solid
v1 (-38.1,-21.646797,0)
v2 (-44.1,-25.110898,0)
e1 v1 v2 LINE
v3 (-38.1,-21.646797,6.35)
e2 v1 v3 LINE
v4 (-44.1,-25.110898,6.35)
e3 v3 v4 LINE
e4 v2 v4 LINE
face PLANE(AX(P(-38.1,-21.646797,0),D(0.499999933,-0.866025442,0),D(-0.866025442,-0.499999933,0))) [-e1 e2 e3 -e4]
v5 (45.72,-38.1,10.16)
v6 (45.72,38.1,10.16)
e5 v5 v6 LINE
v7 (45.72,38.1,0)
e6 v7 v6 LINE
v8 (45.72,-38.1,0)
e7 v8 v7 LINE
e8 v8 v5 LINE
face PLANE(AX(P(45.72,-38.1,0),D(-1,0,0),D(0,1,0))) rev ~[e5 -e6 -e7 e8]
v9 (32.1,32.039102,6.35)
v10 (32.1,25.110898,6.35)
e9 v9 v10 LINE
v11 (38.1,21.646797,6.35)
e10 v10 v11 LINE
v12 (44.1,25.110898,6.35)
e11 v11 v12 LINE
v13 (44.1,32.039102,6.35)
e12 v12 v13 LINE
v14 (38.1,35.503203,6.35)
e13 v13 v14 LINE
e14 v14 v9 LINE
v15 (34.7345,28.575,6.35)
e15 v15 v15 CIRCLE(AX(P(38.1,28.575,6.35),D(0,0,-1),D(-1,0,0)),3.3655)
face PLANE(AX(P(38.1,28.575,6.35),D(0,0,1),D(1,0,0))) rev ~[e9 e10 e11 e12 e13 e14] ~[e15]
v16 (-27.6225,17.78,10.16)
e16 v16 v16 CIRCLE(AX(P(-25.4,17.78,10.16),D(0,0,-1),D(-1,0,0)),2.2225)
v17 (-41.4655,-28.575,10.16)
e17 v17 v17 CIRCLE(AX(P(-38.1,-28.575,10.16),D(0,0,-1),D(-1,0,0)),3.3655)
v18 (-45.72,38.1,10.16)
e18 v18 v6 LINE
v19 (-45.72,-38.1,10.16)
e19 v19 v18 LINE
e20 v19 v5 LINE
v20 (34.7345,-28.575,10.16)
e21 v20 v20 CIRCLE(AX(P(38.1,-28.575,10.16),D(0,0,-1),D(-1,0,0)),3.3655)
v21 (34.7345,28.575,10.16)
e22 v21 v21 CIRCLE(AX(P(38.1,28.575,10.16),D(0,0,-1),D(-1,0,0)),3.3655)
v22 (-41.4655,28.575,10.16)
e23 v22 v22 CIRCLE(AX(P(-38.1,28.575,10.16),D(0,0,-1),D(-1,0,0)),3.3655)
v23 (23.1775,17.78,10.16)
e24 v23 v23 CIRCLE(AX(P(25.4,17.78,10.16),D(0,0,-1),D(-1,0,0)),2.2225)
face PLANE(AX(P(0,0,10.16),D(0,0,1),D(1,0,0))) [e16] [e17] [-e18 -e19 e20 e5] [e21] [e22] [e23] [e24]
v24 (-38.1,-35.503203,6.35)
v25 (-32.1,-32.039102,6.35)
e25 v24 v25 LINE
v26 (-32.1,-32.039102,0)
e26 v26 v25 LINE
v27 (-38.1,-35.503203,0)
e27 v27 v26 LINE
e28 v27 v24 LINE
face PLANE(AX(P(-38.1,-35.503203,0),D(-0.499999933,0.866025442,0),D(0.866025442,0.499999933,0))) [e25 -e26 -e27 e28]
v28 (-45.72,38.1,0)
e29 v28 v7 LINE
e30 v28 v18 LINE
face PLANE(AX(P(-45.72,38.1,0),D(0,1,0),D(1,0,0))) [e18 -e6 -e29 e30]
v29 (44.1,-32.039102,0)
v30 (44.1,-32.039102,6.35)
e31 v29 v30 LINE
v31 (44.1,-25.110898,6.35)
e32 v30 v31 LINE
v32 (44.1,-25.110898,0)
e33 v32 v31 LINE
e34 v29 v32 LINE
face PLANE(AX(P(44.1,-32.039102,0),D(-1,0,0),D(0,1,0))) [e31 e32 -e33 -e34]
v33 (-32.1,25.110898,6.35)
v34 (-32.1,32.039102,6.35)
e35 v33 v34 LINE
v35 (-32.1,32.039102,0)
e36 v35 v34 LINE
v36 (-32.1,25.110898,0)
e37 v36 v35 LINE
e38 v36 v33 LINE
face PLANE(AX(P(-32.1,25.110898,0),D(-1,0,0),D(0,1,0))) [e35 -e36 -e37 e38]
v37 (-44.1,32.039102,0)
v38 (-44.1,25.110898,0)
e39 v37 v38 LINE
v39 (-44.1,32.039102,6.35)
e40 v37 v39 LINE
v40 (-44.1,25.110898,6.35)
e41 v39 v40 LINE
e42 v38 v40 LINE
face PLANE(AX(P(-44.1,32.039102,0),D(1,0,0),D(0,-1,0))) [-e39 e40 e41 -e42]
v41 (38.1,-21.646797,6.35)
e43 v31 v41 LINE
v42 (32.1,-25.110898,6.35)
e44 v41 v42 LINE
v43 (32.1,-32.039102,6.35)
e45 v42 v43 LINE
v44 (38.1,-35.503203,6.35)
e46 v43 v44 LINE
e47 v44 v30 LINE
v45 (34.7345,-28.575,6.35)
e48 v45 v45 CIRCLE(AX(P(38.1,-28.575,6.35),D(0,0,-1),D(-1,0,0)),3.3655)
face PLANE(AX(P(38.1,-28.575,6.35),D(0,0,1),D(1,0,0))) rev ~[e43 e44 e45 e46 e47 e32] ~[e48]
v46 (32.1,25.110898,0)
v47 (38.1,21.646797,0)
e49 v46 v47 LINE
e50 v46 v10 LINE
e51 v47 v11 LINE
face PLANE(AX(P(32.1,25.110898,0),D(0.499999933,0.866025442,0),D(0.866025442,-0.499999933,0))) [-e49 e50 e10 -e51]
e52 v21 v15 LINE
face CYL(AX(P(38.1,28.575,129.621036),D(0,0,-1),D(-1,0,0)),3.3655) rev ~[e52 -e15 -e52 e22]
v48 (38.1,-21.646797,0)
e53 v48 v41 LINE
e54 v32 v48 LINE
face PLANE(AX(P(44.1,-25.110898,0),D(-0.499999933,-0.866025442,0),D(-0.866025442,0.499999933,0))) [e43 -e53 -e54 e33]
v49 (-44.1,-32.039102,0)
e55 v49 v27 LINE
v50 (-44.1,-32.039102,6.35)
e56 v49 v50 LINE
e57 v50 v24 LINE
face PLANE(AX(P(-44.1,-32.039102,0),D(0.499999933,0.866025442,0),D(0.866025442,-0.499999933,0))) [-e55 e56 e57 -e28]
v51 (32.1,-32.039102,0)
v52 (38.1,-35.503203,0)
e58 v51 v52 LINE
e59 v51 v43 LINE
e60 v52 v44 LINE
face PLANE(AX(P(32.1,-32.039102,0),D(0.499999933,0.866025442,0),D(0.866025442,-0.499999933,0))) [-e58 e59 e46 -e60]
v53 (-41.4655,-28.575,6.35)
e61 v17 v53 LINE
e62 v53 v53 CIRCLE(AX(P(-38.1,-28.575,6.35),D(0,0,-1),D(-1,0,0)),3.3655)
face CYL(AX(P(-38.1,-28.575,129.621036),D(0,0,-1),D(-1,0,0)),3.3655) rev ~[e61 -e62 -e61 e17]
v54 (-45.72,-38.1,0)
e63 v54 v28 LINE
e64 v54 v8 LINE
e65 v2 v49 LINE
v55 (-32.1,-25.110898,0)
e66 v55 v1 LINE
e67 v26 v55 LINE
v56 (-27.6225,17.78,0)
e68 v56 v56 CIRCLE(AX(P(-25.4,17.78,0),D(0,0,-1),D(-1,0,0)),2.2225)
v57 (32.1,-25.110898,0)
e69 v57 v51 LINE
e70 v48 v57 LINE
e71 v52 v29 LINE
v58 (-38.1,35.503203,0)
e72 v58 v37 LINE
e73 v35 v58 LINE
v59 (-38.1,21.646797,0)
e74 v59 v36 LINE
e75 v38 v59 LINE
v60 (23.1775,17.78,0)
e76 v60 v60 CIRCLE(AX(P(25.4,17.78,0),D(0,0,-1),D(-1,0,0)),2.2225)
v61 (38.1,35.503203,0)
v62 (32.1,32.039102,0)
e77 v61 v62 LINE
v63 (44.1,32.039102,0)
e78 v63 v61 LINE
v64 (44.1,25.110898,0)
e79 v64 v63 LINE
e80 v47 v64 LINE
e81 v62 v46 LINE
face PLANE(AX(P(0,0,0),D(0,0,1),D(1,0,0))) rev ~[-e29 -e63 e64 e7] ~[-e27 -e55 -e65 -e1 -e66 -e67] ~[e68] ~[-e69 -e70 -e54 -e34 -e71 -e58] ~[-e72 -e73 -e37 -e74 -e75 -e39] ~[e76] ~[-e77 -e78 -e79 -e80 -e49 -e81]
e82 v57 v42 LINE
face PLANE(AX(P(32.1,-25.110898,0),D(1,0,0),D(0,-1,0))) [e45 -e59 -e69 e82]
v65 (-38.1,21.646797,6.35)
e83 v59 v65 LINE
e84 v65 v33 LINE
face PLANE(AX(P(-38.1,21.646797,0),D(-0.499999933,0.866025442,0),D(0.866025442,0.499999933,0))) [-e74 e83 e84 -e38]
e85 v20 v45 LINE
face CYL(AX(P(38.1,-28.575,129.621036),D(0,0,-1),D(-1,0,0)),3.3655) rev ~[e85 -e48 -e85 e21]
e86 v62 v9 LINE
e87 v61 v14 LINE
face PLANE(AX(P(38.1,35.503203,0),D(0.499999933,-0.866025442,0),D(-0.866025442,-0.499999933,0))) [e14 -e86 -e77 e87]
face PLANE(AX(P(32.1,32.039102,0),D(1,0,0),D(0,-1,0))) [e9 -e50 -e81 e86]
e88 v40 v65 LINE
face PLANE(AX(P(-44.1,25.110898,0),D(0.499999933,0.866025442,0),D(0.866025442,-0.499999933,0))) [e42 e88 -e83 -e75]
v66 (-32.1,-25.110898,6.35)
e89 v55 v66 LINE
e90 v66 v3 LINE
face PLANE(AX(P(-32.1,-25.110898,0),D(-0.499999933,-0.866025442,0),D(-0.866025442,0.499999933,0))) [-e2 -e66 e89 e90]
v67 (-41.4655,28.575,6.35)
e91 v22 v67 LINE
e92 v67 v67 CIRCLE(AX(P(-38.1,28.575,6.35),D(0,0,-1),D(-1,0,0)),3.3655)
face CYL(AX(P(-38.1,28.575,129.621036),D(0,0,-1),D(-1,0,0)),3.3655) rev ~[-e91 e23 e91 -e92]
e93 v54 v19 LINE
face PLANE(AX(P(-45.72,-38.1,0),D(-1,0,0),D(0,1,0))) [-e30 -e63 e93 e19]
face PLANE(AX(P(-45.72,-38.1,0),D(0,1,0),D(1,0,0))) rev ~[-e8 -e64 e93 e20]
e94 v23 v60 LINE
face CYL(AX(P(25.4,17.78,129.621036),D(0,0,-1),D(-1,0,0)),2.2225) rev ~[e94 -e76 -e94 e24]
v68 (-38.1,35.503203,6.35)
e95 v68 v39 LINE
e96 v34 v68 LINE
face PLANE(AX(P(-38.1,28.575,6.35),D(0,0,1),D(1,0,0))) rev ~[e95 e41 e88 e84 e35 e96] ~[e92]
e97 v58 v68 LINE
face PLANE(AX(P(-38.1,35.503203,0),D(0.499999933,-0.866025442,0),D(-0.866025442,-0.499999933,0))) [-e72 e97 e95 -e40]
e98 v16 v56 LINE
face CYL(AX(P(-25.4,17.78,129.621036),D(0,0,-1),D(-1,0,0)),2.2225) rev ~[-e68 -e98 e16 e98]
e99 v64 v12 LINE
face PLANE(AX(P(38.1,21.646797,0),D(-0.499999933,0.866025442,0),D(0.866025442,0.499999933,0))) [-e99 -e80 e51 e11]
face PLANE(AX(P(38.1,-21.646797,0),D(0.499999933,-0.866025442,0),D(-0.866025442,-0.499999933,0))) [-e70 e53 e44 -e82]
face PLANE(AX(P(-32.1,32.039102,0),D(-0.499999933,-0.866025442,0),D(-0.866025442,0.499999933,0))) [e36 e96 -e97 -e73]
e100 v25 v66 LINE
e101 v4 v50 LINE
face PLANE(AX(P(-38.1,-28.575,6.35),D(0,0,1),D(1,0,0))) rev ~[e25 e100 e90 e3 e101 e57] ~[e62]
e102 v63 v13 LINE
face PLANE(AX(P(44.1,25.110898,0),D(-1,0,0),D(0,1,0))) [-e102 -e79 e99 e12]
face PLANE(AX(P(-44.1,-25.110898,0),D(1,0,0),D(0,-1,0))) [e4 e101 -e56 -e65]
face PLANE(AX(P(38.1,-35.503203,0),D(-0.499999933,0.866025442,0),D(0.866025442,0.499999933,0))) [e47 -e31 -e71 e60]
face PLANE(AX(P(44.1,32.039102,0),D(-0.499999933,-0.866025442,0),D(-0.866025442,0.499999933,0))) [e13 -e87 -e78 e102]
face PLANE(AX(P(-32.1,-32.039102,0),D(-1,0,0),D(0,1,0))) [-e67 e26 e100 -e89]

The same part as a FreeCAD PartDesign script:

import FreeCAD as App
import Part
import Sketcher
from FreeCAD import Vector
Q = App.Units.Quantity

doc = App.newDocument("Part")
body = doc.addObject("PartDesign::Body", "Body")

sketch1 = body.newObject("Sketcher::SketchObject", "Sketch")
sketch1.AttachmentSupport = (doc.getObject("XY_Plane"), [""])
sketch1.MapMode = "FlatFace"
sketch1.addGeometry(Part.LineSegment(Vector(-45.72, 38.1, 0), Vector(-45.72, -38.1, 0)), False)
sketch1.addGeometry(Part.LineSegment(Vector(-45.72, -38.1, 0), Vector(45.72, -38.1, 0)), False)
sketch1.addGeometry(Part.LineSegment(Vector(45.72, -38.1, 0), Vector(45.72, 38.1, 0)), False)
sketch1.addGeometry(Part.LineSegment(Vector(45.72, 38.1, 0), Vector(-45.72, 38.1, 0)), False)
sketch1.addConstraint(Sketcher.Constraint("Coincident", 0, 2, 1, 1))
sketch1.addConstraint(Sketcher.Constraint("Coincident", 1, 2, 2, 1))
sketch1.addConstraint(Sketcher.Constraint("Coincident", 2, 2, 3, 1))
sketch1.addConstraint(Sketcher.Constraint("Coincident", 3, 2, 0, 1))
sketch1.addConstraint(Sketcher.Constraint("Vertical", 0))
sketch1.addConstraint(Sketcher.Constraint("Horizontal", 1))
sketch1.addConstraint(Sketcher.Constraint("Vertical", 2))
sketch1.addConstraint(Sketcher.Constraint("Horizontal", 3))
sketch1.addConstraint(Sketcher.Constraint("Symmetric", 0, 2, 2, 2, -1, 1))
sketch1.addConstraint(Sketcher.Constraint("DistanceY", 0, 2, 0, 1, Q("3 in")))
sketch1.addConstraint(Sketcher.Constraint("DistanceX", 1, 1, 1, 2, Q("3.6 in")))
pad1 = body.newObject("PartDesign::Pad", "Pad")
pad1.Profile = sketch1
pad1.Length = Q("0.4 in")

sketch2 = body.newObject("Sketcher::SketchObject", "Sketch001")
sketch2.AttachmentSupport = (doc.getObject("XY_Plane"), [""])
sketch2.MapMode = "FlatFace"
sketch2.AttachmentOffset = App.Placement(Vector(0, 0, 0.4 * 25.4), App.Rotation())
sketch2.addGeometry(Part.Circle(Vector(-25.4, 17.78, 0), Vector(0, 0, 1), 2.2225), False)
sketch2.addGeometry(Part.Circle(Vector(25.4, 17.78, 0), Vector(0, 0, 1), 2.2225), False)
sketch2.addConstraint(Sketcher.Constraint("Equal", 0, 1))
sketch2.addConstraint(Sketcher.Constraint("Symmetric", 0, 3, 1, 3, -2))
sketch2.addConstraint(Sketcher.Constraint("Diameter", 0, Q("0.175 in")))
sketch2.addConstraint(Sketcher.Constraint("DistanceX", 0, 3, -1, 1, Q("1 in")))
sketch2.addConstraint(Sketcher.Constraint("DistanceY", -1, 1, 0, 3, Q("0.7 in")))
doc.recompute()
hole = body.newObject("PartDesign::Hole", "Hole")
hole.Profile = sketch2
hole.ThreadType = "None"
hole.Diameter = Q("0.175 in")
hole.DepthType = "ThroughAll"

sketch3 = body.newObject("Sketcher::SketchObject", "Sketch002")
sketch3.AttachmentSupport = (doc.getObject("XY_Plane"), [""])
sketch3.MapMode = "FlatFace"
sketch3.AttachmentOffset = App.Placement(Vector(0, 0, 0.4 * 25.4), App.Rotation())
sketch3.addGeometry(Part.Circle(Vector(-38.1, 28.575, 0), Vector(0, 0, 1), 3.3655), False)
sketch3.addGeometry(Part.Circle(Vector(38.1, 28.575, 0), Vector(0, 0, 1), 3.3655), False)
sketch3.addGeometry(Part.Circle(Vector(-38.1, -28.575, 0), Vector(0, 0, 1), 3.3655), False)
sketch3.addGeometry(Part.Circle(Vector(38.1, -28.575, 0), Vector(0, 0, 1), 3.3655), False)
sketch3.addConstraint(Sketcher.Constraint("Equal", 0, 1))
sketch3.addConstraint(Sketcher.Constraint("Equal", 1, 2))
sketch3.addConstraint(Sketcher.Constraint("Equal", 2, 3))
sketch3.addConstraint(Sketcher.Constraint("Symmetric", 1, 3, 2, 3, -1, 1))
sketch3.addConstraint(Sketcher.Constraint("Symmetric", 0, 3, 3, 3, -1, 1))
sketch3.addConstraint(Sketcher.Constraint("Symmetric", 0, 3, 1, 3, -2))
sketch3.addConstraint(Sketcher.Constraint("Diameter", 0, Q("0.265 in")))
sketch3.addConstraint(Sketcher.Constraint("DistanceX", 0, 3, 1, 3, Q("3 in")))
sketch3.addConstraint(Sketcher.Constraint("DistanceY", 2, 3, 0, 3, Q("2.25 in")))
doc.recompute()
hole2 = body.newObject("PartDesign::Hole", "Hole001")
hole2.Profile = sketch3
hole2.ThreadType = "None"
hole2.Diameter = Q("0.265 in")
hole2.DepthType = "ThroughAll"

sketch4 = body.newObject("Sketcher::SketchObject", "Sketch003")
sketch4.AttachmentSupport = (doc.getObject("XY_Plane"), [""])
sketch4.MapMode = "FlatFace"
sketch4.addGeometry(Part.LineSegment(Vector(38.1, 35.503203, 0), Vector(32.1, 32.039102, 0)), False)
sketch4.addGeometry(Part.LineSegment(Vector(32.1, 32.039102, 0), Vector(32.1, 25.110898, 0)), False)
sketch4.addGeometry(Part.LineSegment(Vector(32.1, 25.110898, 0), Vector(38.1, 21.646797, 0)), False)
sketch4.addGeometry(Part.LineSegment(Vector(38.1, 21.646797, 0), Vector(44.1, 25.110898, 0)), False)
sketch4.addGeometry(Part.LineSegment(Vector(44.1, 25.110898, 0), Vector(44.1, 32.039102, 0)), False)
sketch4.addGeometry(Part.LineSegment(Vector(44.1, 32.039102, 0), Vector(38.1, 35.503203, 0)), False)
sketch4.addGeometry(Part.LineSegment(Vector(-44.1, 25.110898, 0), Vector(-38.1, 21.646797, 0)), False)
sketch4.addGeometry(Part.LineSegment(Vector(-38.1, 21.646797, 0), Vector(-32.1, 25.110898, 0)), False)
sketch4.addGeometry(Part.LineSegment(Vector(-32.1, 25.110898, 0), Vector(-32.1, 32.039102, 0)), False)
sketch4.addGeometry(Part.LineSegment(Vector(-32.1, 32.039102, 0), Vector(-38.1, 35.503203, 0)), False)
sketch4.addGeometry(Part.LineSegment(Vector(-38.1, 35.503203, 0), Vector(-44.1, 32.039102, 0)), False)
sketch4.addGeometry(Part.LineSegment(Vector(-44.1, 32.039102, 0), Vector(-44.1, 25.110898, 0)), False)
sketch4.addGeometry(Part.LineSegment(Vector(44.1, -25.110898, 0), Vector(38.1, -21.646797, 0)), False)
sketch4.addGeometry(Part.LineSegment(Vector(38.1, -21.646797, 0), Vector(32.1, -25.110898, 0)), False)
sketch4.addGeometry(Part.LineSegment(Vector(32.1, -25.110898, 0), Vector(32.1, -32.039102, 0)), False)
sketch4.addGeometry(Part.LineSegment(Vector(32.1, -32.039102, 0), Vector(38.1, -35.503203, 0)), False)
sketch4.addGeometry(Part.LineSegment(Vector(38.1, -35.503203, 0), Vector(44.1, -32.039102, 0)), False)
sketch4.addGeometry(Part.LineSegment(Vector(44.1, -32.039102, 0), Vector(44.1, -25.110898, 0)), False)
sketch4.addGeometry(Part.LineSegment(Vector(-32.1, -25.110898, 0), Vector(-38.1, -21.646797, 0)), False)
sketch4.addGeometry(Part.LineSegment(Vector(-38.1, -21.646797, 0), Vector(-44.1, -25.110898, 0)), False)
sketch4.addGeometry(Part.LineSegment(Vector(-44.1, -25.110898, 0), Vector(-44.1, -32.039102, 0)), False)
sketch4.addGeometry(Part.LineSegment(Vector(-44.1, -32.039102, 0), Vector(-38.1, -35.503203, 0)), False)
sketch4.addGeometry(Part.LineSegment(Vector(-38.1, -35.503203, 0), Vector(-32.1, -32.039102, 0)), False)
sketch4.addGeometry(Part.LineSegment(Vector(-32.1, -32.039102, 0), Vector(-32.1, -25.110898, 0)), False)
sketch4.addConstraint(Sketcher.Constraint("Coincident", 0, 2, 1, 1))
sketch4.addConstraint(Sketcher.Constraint("Coincident", 1, 2, 2, 1))
sketch4.addConstraint(Sketcher.Constraint("Coincident", 2, 2, 3, 1))
sketch4.addConstraint(Sketcher.Constraint("Coincident", 3, 2, 4, 1))
sketch4.addConstraint(Sketcher.Constraint("Coincident", 4, 2, 5, 1))
sketch4.addConstraint(Sketcher.Constraint("Coincident", 5, 2, 0, 1))
sketch4.addConstraint(Sketcher.Constraint("Coincident", 6, 2, 7, 1))
sketch4.addConstraint(Sketcher.Constraint("Coincident", 7, 2, 8, 1))
sketch4.addConstraint(Sketcher.Constraint("Coincident", 8, 2, 9, 1))
sketch4.addConstraint(Sketcher.Constraint("Coincident", 9, 2, 10, 1))
sketch4.addConstraint(Sketcher.Constraint("Coincident", 10, 2, 11, 1))
sketch4.addConstraint(Sketcher.Constraint("Coincident", 11, 2, 6, 1))
sketch4.addConstraint(Sketcher.Constraint("Coincident", 12, 2, 13, 1))
sketch4.addConstraint(Sketcher.Constraint("Coincident", 13, 2, 14, 1))
sketch4.addConstraint(Sketcher.Constraint("Coincident", 14, 2, 15, 1))
sketch4.addConstraint(Sketcher.Constraint("Coincident", 15, 2, 16, 1))
sketch4.addConstraint(Sketcher.Constraint("Coincident", 16, 2, 17, 1))
sketch4.addConstraint(Sketcher.Constraint("Coincident", 17, 2, 12, 1))
sketch4.addConstraint(Sketcher.Constraint("Coincident", 18, 2, 19, 1))
sketch4.addConstraint(Sketcher.Constraint("Coincident", 19, 2, 20, 1))
sketch4.addConstraint(Sketcher.Constraint("Coincident", 20, 2, 21, 1))
sketch4.addConstraint(Sketcher.Constraint("Coincident", 21, 2, 22, 1))
sketch4.addConstraint(Sketcher.Constraint("Coincident", 22, 2, 23, 1))
sketch4.addConstraint(Sketcher.Constraint("Coincident", 23, 2, 18, 1))
sketch4.addConstraint(Sketcher.Constraint("Vertical", 1))
sketch4.addConstraint(Sketcher.Constraint("Vertical", 4))
sketch4.addConstraint(Sketcher.Constraint("Vertical", 8))
sketch4.addConstraint(Sketcher.Constraint("Vertical", 11))
sketch4.addConstraint(Sketcher.Constraint("Vertical", 14))
sketch4.addConstraint(Sketcher.Constraint("Vertical", 17))
sketch4.addConstraint(Sketcher.Constraint("Vertical", 20))
sketch4.addConstraint(Sketcher.Constraint("Vertical", 23))
sketch4.addConstraint(Sketcher.Constraint("Symmetric", 6, 2, 12, 2, -1, 1))
sketch4.addConstraint(Sketcher.Constraint("Symmetric", 7, 2, 13, 2, -1, 1))
sketch4.addConstraint(Sketcher.Constraint("Symmetric", 9, 2, 15, 2, -1, 1))
sketch4.addConstraint(Sketcher.Constraint("Symmetric", 10, 2, 16, 2, -1, 1))
sketch4.addConstraint(Sketcher.Constraint("Symmetric", 2, 2, 18, 2, -1, 1))
sketch4.addConstraint(Sketcher.Constraint("Symmetric", 3, 2, 19, 2, -1, 1))
sketch4.addConstraint(Sketcher.Constraint("Symmetric", 5, 2, 21, 2, -1, 1))
sketch4.addConstraint(Sketcher.Constraint("Symmetric", 0, 2, 22, 2, -1, 1))
sketch4.addConstraint(Sketcher.Constraint("Symmetric", 2, 2, 6, 2, -2))
sketch4.addConstraint(Sketcher.Constraint("Symmetric", 1, 2, 7, 2, -2))
sketch4.addConstraint(Sketcher.Constraint("Symmetric", 5, 2, 9, 2, -2))
sketch4.addConstraint(Sketcher.Constraint("Symmetric", 4, 2, 10, 2, -2))
sketch4.addConstraint(Sketcher.Constraint("Parallel", 0, 3))
sketch4.addConstraint(Sketcher.Constraint("Parallel", 2, 5))
sketch4.addConstraint(Sketcher.Constraint("Parallel", 5, 6))
sketch4.addConstraint(Sketcher.Constraint("Parallel", 3, 7))
sketch4.addConstraint(Sketcher.Constraint("Parallel", 6, 9))
sketch4.addConstraint(Sketcher.Constraint("Parallel", 9, 12))
sketch4.addConstraint(Sketcher.Constraint("Parallel", 12, 15))
sketch4.addConstraint(Sketcher.Constraint("Parallel", 15, 18))
sketch4.addConstraint(Sketcher.Constraint("Parallel", 18, 21))
sketch4.addConstraint(Sketcher.Constraint("Horizontal", 1, 2, 3, 2))
sketch4.addConstraint(Sketcher.Constraint("Horizontal", 0, 2, 4, 2))
sketch4.addConstraint(Sketcher.Constraint("Angle", 0, Q("-150.000004 deg")))
sketch4.addConstraint(Sketcher.Constraint("DistanceX", 6, 2, 2, 2, Q("3 in")))
sketch4.addConstraint(Sketcher.Constraint("DistanceY", 13, 2, 0, 2, Q("2.25 in")))
sketch4.addConstraint(Sketcher.Constraint("DistanceX", -1, 1, 0, 2, Q("32.1 mm")))
sketch4.addConstraint(Sketcher.Constraint("DistanceY", 1, 2, 1, 1, Q("6.928204 mm")))
pocket1 = body.newObject("PartDesign::Pocket", "Pocket")
pocket1.Profile = sketch4
pocket1.Length = Q("0.25 in")
pocket1.Reversed = True

doc.recompute()
